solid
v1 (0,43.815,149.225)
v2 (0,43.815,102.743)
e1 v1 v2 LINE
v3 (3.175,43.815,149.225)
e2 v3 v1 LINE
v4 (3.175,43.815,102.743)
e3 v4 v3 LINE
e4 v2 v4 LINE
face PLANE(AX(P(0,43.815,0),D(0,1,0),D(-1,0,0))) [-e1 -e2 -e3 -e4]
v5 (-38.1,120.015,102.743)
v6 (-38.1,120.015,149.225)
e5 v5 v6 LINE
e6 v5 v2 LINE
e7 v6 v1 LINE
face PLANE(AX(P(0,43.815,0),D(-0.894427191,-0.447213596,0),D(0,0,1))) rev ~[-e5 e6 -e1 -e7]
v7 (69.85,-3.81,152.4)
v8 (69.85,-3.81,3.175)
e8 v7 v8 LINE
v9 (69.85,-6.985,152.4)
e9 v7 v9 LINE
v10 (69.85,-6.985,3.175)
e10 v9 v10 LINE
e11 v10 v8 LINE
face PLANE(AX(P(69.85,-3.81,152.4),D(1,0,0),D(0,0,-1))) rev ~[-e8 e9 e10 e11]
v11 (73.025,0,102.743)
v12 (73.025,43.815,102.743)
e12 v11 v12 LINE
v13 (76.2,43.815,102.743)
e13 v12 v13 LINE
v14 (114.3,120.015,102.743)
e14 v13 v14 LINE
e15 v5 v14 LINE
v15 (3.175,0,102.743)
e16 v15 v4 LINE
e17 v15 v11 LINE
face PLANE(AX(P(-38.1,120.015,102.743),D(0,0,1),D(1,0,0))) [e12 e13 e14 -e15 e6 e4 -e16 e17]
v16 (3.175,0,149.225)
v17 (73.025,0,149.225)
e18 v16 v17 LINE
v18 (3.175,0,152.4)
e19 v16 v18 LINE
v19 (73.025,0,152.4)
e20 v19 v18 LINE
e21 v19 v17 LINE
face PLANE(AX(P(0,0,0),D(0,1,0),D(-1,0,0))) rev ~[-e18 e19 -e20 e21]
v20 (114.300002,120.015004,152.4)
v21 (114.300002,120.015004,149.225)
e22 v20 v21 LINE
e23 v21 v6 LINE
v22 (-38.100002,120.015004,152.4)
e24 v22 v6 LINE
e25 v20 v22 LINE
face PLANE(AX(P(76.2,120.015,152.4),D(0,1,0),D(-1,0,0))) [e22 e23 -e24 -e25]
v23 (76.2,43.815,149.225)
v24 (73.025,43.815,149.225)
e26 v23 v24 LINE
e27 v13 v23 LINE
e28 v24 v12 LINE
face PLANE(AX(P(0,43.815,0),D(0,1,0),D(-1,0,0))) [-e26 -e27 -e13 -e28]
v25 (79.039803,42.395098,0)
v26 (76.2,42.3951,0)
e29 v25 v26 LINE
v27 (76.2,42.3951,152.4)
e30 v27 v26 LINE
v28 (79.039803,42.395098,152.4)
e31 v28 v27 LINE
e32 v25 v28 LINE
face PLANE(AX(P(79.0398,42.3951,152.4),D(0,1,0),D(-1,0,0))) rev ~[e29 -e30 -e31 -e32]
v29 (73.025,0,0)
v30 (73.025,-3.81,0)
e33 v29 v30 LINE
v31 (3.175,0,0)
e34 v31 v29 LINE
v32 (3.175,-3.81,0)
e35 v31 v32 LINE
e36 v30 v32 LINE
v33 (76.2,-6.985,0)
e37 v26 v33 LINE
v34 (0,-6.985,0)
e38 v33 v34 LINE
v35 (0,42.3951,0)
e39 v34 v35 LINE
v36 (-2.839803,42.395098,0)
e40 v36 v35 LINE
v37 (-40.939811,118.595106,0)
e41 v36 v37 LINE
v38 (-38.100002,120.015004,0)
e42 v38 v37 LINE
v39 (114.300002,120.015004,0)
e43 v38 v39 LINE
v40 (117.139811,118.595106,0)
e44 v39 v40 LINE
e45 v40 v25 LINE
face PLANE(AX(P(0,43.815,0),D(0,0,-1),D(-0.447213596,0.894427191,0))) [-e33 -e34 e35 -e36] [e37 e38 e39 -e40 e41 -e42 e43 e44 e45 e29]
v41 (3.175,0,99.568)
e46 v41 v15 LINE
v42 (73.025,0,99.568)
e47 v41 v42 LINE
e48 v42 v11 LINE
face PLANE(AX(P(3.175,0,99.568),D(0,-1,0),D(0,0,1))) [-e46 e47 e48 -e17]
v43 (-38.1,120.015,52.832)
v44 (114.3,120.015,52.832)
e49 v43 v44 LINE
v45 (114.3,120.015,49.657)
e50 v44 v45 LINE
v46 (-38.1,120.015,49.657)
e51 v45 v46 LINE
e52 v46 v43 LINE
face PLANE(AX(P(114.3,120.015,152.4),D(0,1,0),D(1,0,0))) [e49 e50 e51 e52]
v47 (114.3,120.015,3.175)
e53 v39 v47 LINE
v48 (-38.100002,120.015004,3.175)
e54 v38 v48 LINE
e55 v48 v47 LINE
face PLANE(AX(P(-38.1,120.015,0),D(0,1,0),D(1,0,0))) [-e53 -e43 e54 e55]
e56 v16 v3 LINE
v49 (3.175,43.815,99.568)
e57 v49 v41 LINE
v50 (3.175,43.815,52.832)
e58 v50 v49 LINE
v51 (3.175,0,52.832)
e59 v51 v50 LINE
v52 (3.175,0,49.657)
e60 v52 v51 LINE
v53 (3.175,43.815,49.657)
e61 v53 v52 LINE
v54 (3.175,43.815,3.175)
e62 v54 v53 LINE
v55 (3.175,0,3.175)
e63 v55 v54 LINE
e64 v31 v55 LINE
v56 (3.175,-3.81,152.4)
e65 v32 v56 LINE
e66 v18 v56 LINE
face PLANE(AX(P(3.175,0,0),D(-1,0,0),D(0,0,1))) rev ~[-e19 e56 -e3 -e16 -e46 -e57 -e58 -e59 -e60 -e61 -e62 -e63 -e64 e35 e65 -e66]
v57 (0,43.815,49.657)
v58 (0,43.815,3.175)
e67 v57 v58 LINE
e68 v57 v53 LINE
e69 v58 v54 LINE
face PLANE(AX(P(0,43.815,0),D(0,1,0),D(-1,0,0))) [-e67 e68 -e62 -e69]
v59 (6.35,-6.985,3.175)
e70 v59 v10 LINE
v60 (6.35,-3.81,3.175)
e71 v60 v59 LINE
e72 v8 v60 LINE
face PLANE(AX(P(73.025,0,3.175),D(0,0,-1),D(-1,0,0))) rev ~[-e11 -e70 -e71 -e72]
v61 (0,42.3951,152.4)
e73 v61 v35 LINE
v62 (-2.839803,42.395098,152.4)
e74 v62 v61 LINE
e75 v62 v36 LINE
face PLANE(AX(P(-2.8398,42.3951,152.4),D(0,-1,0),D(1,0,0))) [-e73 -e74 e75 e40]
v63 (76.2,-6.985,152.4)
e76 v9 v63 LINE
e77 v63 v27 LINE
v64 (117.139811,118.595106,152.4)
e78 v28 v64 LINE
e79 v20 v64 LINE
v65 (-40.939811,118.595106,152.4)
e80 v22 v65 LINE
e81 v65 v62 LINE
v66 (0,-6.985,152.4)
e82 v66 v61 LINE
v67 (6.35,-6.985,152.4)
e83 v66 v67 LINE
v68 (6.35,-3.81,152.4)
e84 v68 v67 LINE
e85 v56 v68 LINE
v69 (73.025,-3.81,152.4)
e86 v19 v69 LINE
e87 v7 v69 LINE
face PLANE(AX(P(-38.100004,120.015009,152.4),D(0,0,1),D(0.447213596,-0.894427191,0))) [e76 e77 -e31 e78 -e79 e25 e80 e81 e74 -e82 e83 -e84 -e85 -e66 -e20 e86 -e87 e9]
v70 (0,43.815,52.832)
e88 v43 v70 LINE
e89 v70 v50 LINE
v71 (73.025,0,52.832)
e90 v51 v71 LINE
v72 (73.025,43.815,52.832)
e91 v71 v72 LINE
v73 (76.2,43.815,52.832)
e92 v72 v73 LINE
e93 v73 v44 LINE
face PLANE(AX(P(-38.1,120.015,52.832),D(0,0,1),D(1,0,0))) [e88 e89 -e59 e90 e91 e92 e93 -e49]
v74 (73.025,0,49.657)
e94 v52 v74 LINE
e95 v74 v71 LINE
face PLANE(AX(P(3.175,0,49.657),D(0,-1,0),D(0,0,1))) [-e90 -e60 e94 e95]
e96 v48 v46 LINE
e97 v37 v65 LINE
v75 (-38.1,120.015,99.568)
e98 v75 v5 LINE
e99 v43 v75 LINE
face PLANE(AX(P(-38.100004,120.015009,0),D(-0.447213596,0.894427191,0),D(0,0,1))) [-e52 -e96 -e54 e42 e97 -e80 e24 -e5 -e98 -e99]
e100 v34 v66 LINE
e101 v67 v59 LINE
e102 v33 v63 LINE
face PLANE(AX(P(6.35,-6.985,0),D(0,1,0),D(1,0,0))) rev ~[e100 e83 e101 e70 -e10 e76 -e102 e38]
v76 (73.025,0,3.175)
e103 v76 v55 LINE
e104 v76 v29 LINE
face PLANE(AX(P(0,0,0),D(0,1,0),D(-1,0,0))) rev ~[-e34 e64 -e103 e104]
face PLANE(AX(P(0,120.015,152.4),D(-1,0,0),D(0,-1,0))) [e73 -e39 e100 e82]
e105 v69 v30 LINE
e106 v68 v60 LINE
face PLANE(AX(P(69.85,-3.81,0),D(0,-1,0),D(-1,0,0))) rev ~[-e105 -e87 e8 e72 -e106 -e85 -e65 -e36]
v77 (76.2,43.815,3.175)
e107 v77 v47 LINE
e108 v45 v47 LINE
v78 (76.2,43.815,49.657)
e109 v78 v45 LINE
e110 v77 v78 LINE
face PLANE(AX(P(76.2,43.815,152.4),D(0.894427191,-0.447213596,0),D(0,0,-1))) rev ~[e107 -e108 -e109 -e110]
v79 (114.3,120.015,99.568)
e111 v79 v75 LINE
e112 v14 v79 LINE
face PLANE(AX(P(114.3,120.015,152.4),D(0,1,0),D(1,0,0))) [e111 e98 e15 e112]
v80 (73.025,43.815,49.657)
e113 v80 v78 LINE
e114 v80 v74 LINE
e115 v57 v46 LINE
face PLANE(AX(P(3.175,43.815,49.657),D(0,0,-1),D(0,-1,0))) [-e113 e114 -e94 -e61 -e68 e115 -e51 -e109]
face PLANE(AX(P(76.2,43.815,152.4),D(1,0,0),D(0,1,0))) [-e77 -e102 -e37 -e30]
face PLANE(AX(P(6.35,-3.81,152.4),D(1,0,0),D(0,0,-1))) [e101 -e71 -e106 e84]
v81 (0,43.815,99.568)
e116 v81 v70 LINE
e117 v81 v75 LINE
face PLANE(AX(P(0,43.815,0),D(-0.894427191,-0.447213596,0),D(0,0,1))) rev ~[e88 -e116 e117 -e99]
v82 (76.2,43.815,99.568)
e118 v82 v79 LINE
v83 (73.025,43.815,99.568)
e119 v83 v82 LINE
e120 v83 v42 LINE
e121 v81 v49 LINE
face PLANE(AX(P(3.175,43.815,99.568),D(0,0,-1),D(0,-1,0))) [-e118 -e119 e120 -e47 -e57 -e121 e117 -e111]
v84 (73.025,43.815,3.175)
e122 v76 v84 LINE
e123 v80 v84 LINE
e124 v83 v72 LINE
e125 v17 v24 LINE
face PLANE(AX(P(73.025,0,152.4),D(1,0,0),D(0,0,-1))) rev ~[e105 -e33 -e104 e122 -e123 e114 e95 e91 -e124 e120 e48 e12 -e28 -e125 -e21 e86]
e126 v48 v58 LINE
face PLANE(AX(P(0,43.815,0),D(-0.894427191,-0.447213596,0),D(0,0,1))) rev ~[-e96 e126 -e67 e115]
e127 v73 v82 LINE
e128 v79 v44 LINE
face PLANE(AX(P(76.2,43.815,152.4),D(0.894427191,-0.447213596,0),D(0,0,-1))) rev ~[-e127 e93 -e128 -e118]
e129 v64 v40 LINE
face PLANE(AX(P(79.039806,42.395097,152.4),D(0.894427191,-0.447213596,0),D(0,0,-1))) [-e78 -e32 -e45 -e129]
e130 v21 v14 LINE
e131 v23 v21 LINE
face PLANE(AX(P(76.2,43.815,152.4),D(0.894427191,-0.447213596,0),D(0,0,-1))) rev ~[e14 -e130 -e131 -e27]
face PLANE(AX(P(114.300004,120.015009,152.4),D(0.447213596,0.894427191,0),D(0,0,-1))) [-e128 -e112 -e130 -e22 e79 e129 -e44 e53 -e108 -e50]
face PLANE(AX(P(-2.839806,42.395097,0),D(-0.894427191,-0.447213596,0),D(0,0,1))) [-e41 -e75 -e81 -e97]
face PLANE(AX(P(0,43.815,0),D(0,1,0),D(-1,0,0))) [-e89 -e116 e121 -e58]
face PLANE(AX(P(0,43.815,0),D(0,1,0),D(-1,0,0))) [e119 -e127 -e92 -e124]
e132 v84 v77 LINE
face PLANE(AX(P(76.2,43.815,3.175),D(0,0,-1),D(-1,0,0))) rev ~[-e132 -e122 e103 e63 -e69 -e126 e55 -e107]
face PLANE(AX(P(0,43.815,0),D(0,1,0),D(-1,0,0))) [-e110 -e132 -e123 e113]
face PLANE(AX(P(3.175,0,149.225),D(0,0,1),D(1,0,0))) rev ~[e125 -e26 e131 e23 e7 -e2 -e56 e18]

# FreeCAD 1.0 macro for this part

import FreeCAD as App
import Part
import Sketcher
from FreeCAD import Vector
Q = App.Units.Quantity

doc = App.newDocument("Part")
body = doc.addObject("PartDesign::Body", "Body")

# Sketch on XZ plane
sketch1 = doc.addObject("Sketcher::SketchObject", "Sketch")
body.addObject(sketch1)
sketch1.AttachmentSupport = (doc.XZ_Plane, [""])
sketch1.MapMode = "FlatFace"
sketch1.addGeometry([
    Part.LineSegment(Vector(76, 0, 0), Vector(0, 0, 0)),  # 0
    Part.LineSegment(Vector(0, 0, 0), Vector(0, 152, 0)),  # 1
    Part.LineSegment(Vector(0, 152, 0), Vector(76, 152, 0)),  # 2
    Part.LineSegment(Vector(76, 152, 0), Vector(76, 0, 0)),  # 3
    Part.LineSegment(Vector(73, 149, 0), Vector(3, 149, 0)),  # 4
    Part.LineSegment(Vector(3, 149, 0), Vector(3, 3, 0)),  # 5
    Part.LineSegment(Vector(3, 3, 0), Vector(73, 3, 0)),  # 6
    Part.LineSegment(Vector(73, 3, 0), Vector(73, 149, 0)),  # 7
], False)
sketch1.addConstraint([
    Sketcher.Constraint("Coincident", 0, 2, 1, 1),
    Sketcher.Constraint("Coincident", 1, 2, 2, 1),
    Sketcher.Constraint("Coincident", 2, 2, 3, 1),
    Sketcher.Constraint("Coincident", 3, 2, 0, 1),
    Sketcher.Constraint("Coincident", 4, 2, 5, 1),
    Sketcher.Constraint("Coincident", 5, 2, 6, 1),
    Sketcher.Constraint("Coincident", 6, 2, 7, 1),
    Sketcher.Constraint("Coincident", 7, 2, 4, 1),
    Sketcher.Constraint("Horizontal", 0),
    Sketcher.Constraint("Vertical", 1),
    Sketcher.Constraint("Horizontal", 2),
    Sketcher.Constraint("Vertical", 3),
    Sketcher.Constraint("Horizontal", 4),
    Sketcher.Constraint("Vertical", 5),
    Sketcher.Constraint("Horizontal", 6),
    Sketcher.Constraint("Vertical", 7),
    Sketcher.Constraint("Coincident", 0, 2, -1, 1),
    Sketcher.Constraint("DistanceX", 0, 2, 0, 1, Q("3 in")),
    Sketcher.Constraint("DistanceY", 1, 1, 1, 2, Q("6 in")),
    Sketcher.Constraint("DistanceX", -1, 1, 4, 2, Q("0.125 in")),
    Sketcher.Constraint("DistanceY", -1, 1, 5, 2, Q("0.125 in")),
    Sketcher.Constraint("DistanceY", 4, 2, 1, 2, Q("0.125 in")),
    Sketcher.Constraint("DistanceX", 6, 2, 3, 2, Q("0.125 in")),
])
pad1 = doc.addObject("PartDesign::Pad", "Pad")
body.addObject(pad1)
pad1.Profile = sketch1
pad1.Length = Q("1.725 in")
pad1.Reversed = True

# Sketch on XZ plane
sketch2 = doc.addObject("Sketcher::SketchObject", "Sketch001")
body.addObject(sketch2)
sketch2.AttachmentSupport = (doc.XZ_Plane, [""])
sketch2.MapMode = "FlatFace"
sketch2.addGeometry([
    Part.LineSegment(Vector(3.2, 152.4, 0), Vector(0, 152.4, 0)),  # 0
    Part.LineSegment(Vector(0, 152.4, 0), Vector(0, 0, 0)),  # 1
    Part.LineSegment(Vector(0, 0, 0), Vector(3.2, 0, 0)),  # 2
    Part.LineSegment(Vector(3.2, 0, 0), Vector(3.2, 152.4, 0)),  # 3
    Part.LineSegment(Vector(76.2, 152.4, 0), Vector(73, 152.4, 0)),  # 4
    Part.LineSegment(Vector(73, 152.4, 0), Vector(73, 0, 0)),  # 5
    Part.LineSegment(Vector(73, 0, 0), Vector(76.2, 0, 0)),  # 6
    Part.LineSegment(Vector(76.2, 0, 0), Vector(76.2, 152.4, 0)),  # 7
], False)
sketch2.addConstraint([
    Sketcher.Constraint("Coincident", 0, 2, 1, 1),
    Sketcher.Constraint("Coincident", 1, 2, 2, 1),
    Sketcher.Constraint("Coincident", 2, 2, 3, 1),
    Sketcher.Constraint("Coincident", 3, 2, 0, 1),
    Sketcher.Constraint("Coincident", 4, 2, 5, 1),
    Sketcher.Constraint("Coincident", 5, 2, 6, 1),
    Sketcher.Constraint("Coincident", 6, 2, 7, 1),
    Sketcher.Constraint("Coincident", 7, 2, 4, 1),
    Sketcher.Constraint("Horizontal", 0),
    Sketcher.Constraint("Vertical", 1),
    Sketcher.Constraint("Horizontal", 2),
    Sketcher.Constraint("Vertical", 3),
    Sketcher.Constraint("Horizontal", 4),
    Sketcher.Constraint("Vertical", 5),
    Sketcher.Constraint("Horizontal", 6),
    Sketcher.Constraint("Vertical", 7),
    Sketcher.Constraint("Coincident", 1, 2, -1, 1),
    Sketcher.Constraint("PointOnObject", 5, 2, -1),
    Sketcher.Constraint("Horizontal", 3, 2, 4, 2),
    Sketcher.Constraint("Equal", 2, 4),
    Sketcher.Constraint("DistanceX", 0, 2, 0, 1, Q("0.125 in")),
    Sketcher.Constraint("DistanceY", 1, 2, 1, 1, Q("6 in")),
    Sketcher.Constraint("DistanceX", -1, 1, 6, 2, Q("3 in")),
])
pad2 = doc.addObject("PartDesign::Pad", "Pad001")
body.addObject(pad2)
pad2.Profile = sketch2
pad2.Length = Q("0.15 in")

# Sketch on XZ plane
sketch3 = doc.addObject("Sketcher::SketchObject", "Sketch002")
body.addObject(sketch3)
sketch3.AttachmentSupport = (doc.XZ_Plane, [""])
sketch3.MapMode = "FlatFace"
sketch3.AttachmentOffset = App.Placement(Vector(0, 0, 0.15 * 25.4), App.Rotation())
sketch3.addGeometry([
    Part.LineSegment(Vector(6, 152, 0), Vector(0, 152, 0)),  # 0
    Part.LineSegment(Vector(0, 152, 0), Vector(0, 0, 0)),  # 1
    Part.LineSegment(Vector(0, 0, 0), Vector(6, 0, 0)),  # 2
    Part.LineSegment(Vector(6, 0, 0), Vector(6, 152, 0)),  # 3
    Part.LineSegment(Vector(76, 152, 0), Vector(70, 152, 0)),  # 4
    Part.LineSegment(Vector(70, 152, 0), Vector(70, 0, 0)),  # 5
    Part.LineSegment(Vector(70, 0, 0), Vector(76, 0, 0)),  # 6
    Part.LineSegment(Vector(76, 0, 0), Vector(76, 152, 0)),  # 7
], False)
sketch3.addConstraint([
    Sketcher.Constraint("Coincident", 0, 2, 1, 1),
    Sketcher.Constraint("Coincident", 1, 2, 2, 1),
    Sketcher.Constraint("Coincident", 2, 2, 3, 1),
    Sketcher.Constraint("Coincident", 3, 2, 0, 1),
    Sketcher.Constraint("Coincident", 4, 2, 5, 1),
    Sketcher.Constraint("Coincident", 5, 2, 6, 1),
    Sketcher.Constraint("Coincident", 6, 2, 7, 1),
    Sketcher.Constraint("Coincident", 7, 2, 4, 1),
    Sketcher.Constraint("Horizontal", 0),
    Sketcher.Constraint("Vertical", 1),
    Sketcher.Constraint("Horizontal", 2),
    Sketcher.Constraint("Vertical", 3),
    Sketcher.Constraint("Horizontal", 4),
    Sketcher.Constraint("Vertical", 5),
    Sketcher.Constraint("Horizontal", 6),
    Sketcher.Constraint("Vertical", 7),
    Sketcher.Constraint("Coincident", 1, 2, -1, 1),
    Sketcher.Constraint("PointOnObject", 5, 2, -1),
    Sketcher.Constraint("Horizontal", 3, 2, 4, 2),
    Sketcher.Constraint("Equal", 2, 4),
    Sketcher.Constraint("DistanceX", 0, 2, 0, 1, Q("0.25 in")),
    Sketcher.Constraint("DistanceY", 1, 2, 1, 1, Q("6 in")),
    Sketcher.Constraint("DistanceX", -1, 1, 6, 2, Q("3 in")),
])
pad3 = doc.addObject("PartDesign::Pad", "Pad002")
body.addObject(pad3)
pad3.Profile = sketch3
pad3.Length = Q("0.125 in")

# Sketch on XY plane
sketch4 = doc.addObject("Sketcher::SketchObject", "Sketch003")
body.addObject(sketch4)
sketch4.AttachmentSupport = (doc.XY_Plane, [""])
sketch4.MapMode = "FlatFace"
sketch4.addGeometry([
    Part.LineSegment(Vector(6.3, -3.8, 0), Vector(69.8, -3.8, 0)),
    Part.LineSegment(Vector(69.8, -3.8, 0), Vector(69.8, -7, 0)),
    Part.LineSegment(Vector(69.8, -7, 0), Vector(6.3, -7, 0)),
    Part.LineSegment(Vector(6.3, -7, 0), Vector(6.3, -3.8, 0)),
], False)
sketch4.addConstraint([
    Sketcher.Constraint("Coincident", 0, 2, 1, 1),
    Sketcher.Constraint("Coincident", 1, 2, 2, 1),
    Sketcher.Constraint("Coincident", 2, 2, 3, 1),
    Sketcher.Constraint("Coincident", 3, 2, 0, 1),
    Sketcher.Constraint("Horizontal", 0),
    Sketcher.Constraint("Vertical", 1),
    Sketcher.Constraint("Horizontal", 2),
    Sketcher.Constraint("Vertical", 3),
    Sketcher.Constraint("DistanceX", 0, 1, 0, 2, Q("2.5 in")),
    Sketcher.Constraint("DistanceY", 1, 2, 1, 1, Q("0.125 in")),
    Sketcher.Constraint("DistanceX", -1, 1, 0, 2, Q("2.75 in")),
    Sketcher.Constraint("DistanceY", 0, 2, -1, 1, Q("0.15 in")),
])
pad4 = doc.addObject("PartDesign::Pad", "Pad003")
body.addObject(pad4)
pad4.Profile = sketch4
pad4.Length = Q("0.125 in")

# Sketch on YZ plane
sketch5 = doc.addObject("Sketcher::SketchObject", "Sketch004")
body.addObject(sketch5)
sketch5.AttachmentSupport = (doc.YZ_Plane, [""])
sketch5.MapMode = "FlatFace"
sketch5.AttachmentOffset = App.Placement(Vector(0, 0, 0.125 * 25.4), App.Rotation())
sketch5.addGeometry([
    Part.LineSegment(Vector(43.8, 99.6, 0), Vector(43.8, 102.7, 0)),  # 0
    Part.LineSegment(Vector(43.8, 102.7, 0), Vector(0, 102.7, 0)),  # 1
    Part.LineSegment(Vector(0, 102.7, 0), Vector(0, 99.6, 0)),  # 2
    Part.LineSegment(Vector(0, 99.6, 0), Vector(43.8, 99.6, 0)),  # 3
    Part.LineSegment(Vector(43.8, 49.7, 0), Vector(43.8, 52.8, 0)),  # 4
    Part.LineSegment(Vector(43.8, 52.8, 0), Vector(0, 52.8, 0)),  # 5
    Part.LineSegment(Vector(0, 52.8, 0), Vector(0, 49.7, 0)),  # 6
    Part.LineSegment(Vector(0, 49.7, 0), Vector(43.8, 49.7, 0)),  # 7
], False)
sketch5.addConstraint([
    Sketcher.Constraint("Coincident", 0, 2, 1, 1),
    Sketcher.Constraint("Coincident", 1, 2, 2, 1),
    Sketcher.Constraint("Coincident", 2, 2, 3, 1),
    Sketcher.Constraint("Coincident", 3, 2, 0, 1),
    Sketcher.Constraint("Coincident", 4, 2, 5, 1),
    Sketcher.Constraint("Coincident", 5, 2, 6, 1),
    Sketcher.Constraint("Coincident", 6, 2, 7, 1),
    Sketcher.Constraint("Coincident", 7, 2, 4, 1),
    Sketcher.Constraint("Vertical", 0),
    Sketcher.Constraint("Horizontal", 1),
    Sketcher.Constraint("Vertical", 2),
    Sketcher.Constraint("Horizontal", 3),
    Sketcher.Constraint("Vertical", 4),
    Sketcher.Constraint("Horizontal", 5),
    Sketcher.Constraint("Vertical", 6),
    Sketcher.Constraint("Horizontal", 7),
    Sketcher.Constraint("PointOnObject", 1, 2, -2),
    Sketcher.Constraint("PointOnObject", 5, 2, -2),
    Sketcher.Constraint("Vertical", 3, 2, 4, 2),
    Sketcher.Constraint("Equal", 2, 4),
    Sketcher.Constraint("DistanceX", 1, 2, 1, 1, Q("1.725 in")),
    Sketcher.Constraint("DistanceY", 0, 1, 0, 2, Q("0.125 in")),
    Sketcher.Constraint("DistanceY", 4, 2, 3, 2, Q("1.84 in")),
    Sketcher.Constraint("DistanceY", -1, 1, 2, 2, Q("3.92 in")),
])
pad5 = doc.addObject("PartDesign::Pad", "Pad004")
body.addObject(pad5)
pad5.Profile = sketch5
pad5.Type = "UpToFirst"

# Sketch on XY plane
sketch6 = doc.addObject("Sketcher::SketchObject", "Sketch005")
body.addObject(sketch6)
sketch6.AttachmentSupport = (doc.XY_Plane, [""])
sketch6.MapMode = "FlatFace"
sketch6.AttachmentOffset = App.Placement(Vector(0, 0, 6 * 25.4), App.Rotation())
sketch6.addGeometry([
    Part.LineSegment(Vector(0, 44, 0), Vector(76, 44, 0)),
    Part.LineSegment(Vector(76, 44, 0), Vector(76, 120, 0)),
    Part.LineSegment(Vector(76, 120, 0), Vector(0, 120, 0)),
    Part.LineSegment(Vector(0, 120, 0), Vector(0, 44, 0)),
], False)
sketch6.addConstraint([
    Sketcher.Constraint("Coincident", 0, 2, 1, 1),
    Sketcher.Constraint("Coincident", 1, 2, 2, 1),
    Sketcher.Constraint("Coincident", 2, 2, 3, 1),
    Sketcher.Constraint("Coincident", 3, 2, 0, 1),
    Sketcher.Constraint("Horizontal", 0),
    Sketcher.Constraint("Vertical", 1),
    Sketcher.Constraint("Horizontal", 2),
    Sketcher.Constraint("Vertical", 3),
    Sketcher.Constraint("PointOnObject", 2, 2, -2),
    Sketcher.Constraint("Equal", 2, 1),
    Sketcher.Constraint("DistanceX", 0, 1, 0, 2, Q("3 in")),
    Sketcher.Constraint("DistanceY", -1, 1, 0, 2, Q("1.725 in")),
])
pad6 = doc.addObject("PartDesign::Pad", "Pad005")
body.addObject(pad6)
pad6.Profile = sketch6
pad6.Length = Q("0.125 in")
pad6.Reversed = True

# Sketch on XY plane
sketch7 = doc.addObject("Sketcher::SketchObject", "Sketch006")
body.addObject(sketch7)
sketch7.AttachmentSupport = (doc.XY_Plane, [""])
sketch7.MapMode = "FlatFace"
sketch7.AttachmentOffset = App.Placement(Vector(0, 0, 6 * 25.4), App.Rotation())
sketch7.addGeometry([
    Part.LineSegment(Vector(114, 120, 0), Vector(76, 120, 0)),  # 0
    Part.LineSegment(Vector(76, 120, 0), Vector(76, 44, 0)),  # 1
    Part.LineSegment(Vector(76, 44, 0), Vector(114, 120, 0)),  # 2
    Part.LineSegment(Vector(0, 44, 0), Vector(0, 120, 0)),  # 3
    Part.LineSegment(Vector(0, 120, 0), Vector(-38, 120, 0)),  # 4
    Part.LineSegment(Vector(-38, 120, 0), Vector(0, 44, 0)),  # 5
], False)
sketch7.addConstraint([
    Sketcher.Constraint("Coincident", 0, 2, 1, 1),
    Sketcher.Constraint("Coincident", 1, 2, 2, 1),
    Sketcher.Constraint("Coincident", 2, 2, 0, 1),
    Sketcher.Constraint("Coincident", 3, 2, 4, 1),
    Sketcher.Constraint("Coincident", 4, 2, 5, 1),
    Sketcher.Constraint("Coincident", 5, 2, 3, 1),
    Sketcher.Constraint("Horizontal", 0),
    Sketcher.Constraint("Vertical", 1),
    Sketcher.Constraint("Vertical", 3),
    Sketcher.Constraint("Horizontal", 4),
    Sketcher.Constraint("PointOnObject", 3, 2, -2),
    Sketcher.Constraint("Horizontal", 2, 2, 3, 2),
    Sketcher.Constraint("Horizontal", 1, 2, 5, 2),
    Sketcher.Constraint("Equal", 0, 4),
    Sketcher.Constraint("DistanceX", 0, 2, 0, 1, Q("1.5 in")),
    Sketcher.Constraint("DistanceY", 1, 2, 1, 1, Q("3 in")),
    Sketcher.Constraint("DistanceX", -1, 1, 0, 2, Q("3 in")),
    Sketcher.Constraint("DistanceY", -1, 1, 0, 2, Q("4.725 in")),
])
pad7 = doc.addObject("PartDesign::Pad", "Pad006")
body.addObject(pad7)
pad7.Profile = sketch7
pad7.Length = Q("0.125 in")
pad7.Reversed = True

# Sketch on XY plane
sketch8 = doc.addObject("Sketcher::SketchObject", "Sketch007")
body.addObject(sketch8)
sketch8.AttachmentSupport = (doc.XY_Plane, [""])
sketch8.MapMode = "FlatFace"
sketch8.addGeometry([
    Part.LineSegment(Vector(76, 44, 0), Vector(0, 44, 0)),
    Part.LineSegment(Vector(0, 44, 0), Vector(-38, 120, 0)),
    Part.LineSegment(Vector(-38, 120, 0), Vector(114, 120, 0)),
    Part.LineSegment(Vector(114, 120, 0), Vector(76, 44, 0)),
], False)
sketch8.addConstraint([
    Sketcher.Constraint("Coincident", 0, 2, 1, 1),
    Sketcher.Constraint("Coincident", 1, 2, 2, 1),
    Sketcher.Constraint("Coincident", 2, 2, 3, 1),
    Sketcher.Constraint("Coincident", 3, 2, 0, 1),
    Sketcher.Constraint("Horizontal", 0),
    Sketcher.Constraint("Horizontal", 2),
    Sketcher.Constraint("PointOnObject", 0, 2, -2),
    Sketcher.Constraint("Equal", 1, 3),
    Sketcher.Constraint("DistanceX", 0, 2, 0, 1, Q("3 in")),
    Sketcher.Constraint("DistanceX", 2, 1, 2, 2, Q("6 in")),
    Sketcher.Constraint("DistanceY", 0, 2, 1, 2, Q("3 in")),
    Sketcher.Constraint("DistanceY", -1, 1, 0, 2, Q("1.725 in")),
])
pad8 = doc.addObject("PartDesign::Pad", "Pad007")
body.addObject(pad8)
pad8.Profile = sketch8
pad8.Length = Q("0.125 in")

# Sketch on an angled plane
sketch9 = doc.addObject("Sketcher::SketchObject", "Sketch008")
body.addObject(sketch9)
sketch9.Placement = App.Placement(Vector(76.2, 43.815, 152.4), App.Rotation(Vector(0, 0, -1), Vector(0.447213595, 0.894427191, 0), Vector(0.894427191, -0.447213595, 0), "ZXY"))
sketch9.addGeometry([
    Part.LineSegment(Vector(152, 85, 0), Vector(0, 85, 0)),
    Part.LineSegment(Vector(0, 85, 0), Vector(0, 0, 0)),
    Part.LineSegment(Vector(0, 0, 0), Vector(152, 0, 0)),
    Part.LineSegment(Vector(152, 0, 0), Vector(152, 85, 0)),
], False)
sketch9.addConstraint([
    Sketcher.Constraint("Coincident", 0, 2, 1, 1),
    Sketcher.Constraint("Coincident", 1, 2, 2, 1),
    Sketcher.Constraint("Coincident", 2, 2, 3, 1),
    Sketcher.Constraint("Coincident", 3, 2, 0, 1),
    Sketcher.Constraint("Horizontal", 0),
    Sketcher.Constraint("Vertical", 1),
    Sketcher.Constraint("Horizontal", 2),
    Sketcher.Constraint("Vertical", 3),
    Sketcher.Constraint("Coincident", 1, 2, -1, 1),
    Sketcher.Constraint("DistanceX", 0, 2, 0, 1, Q("6 in")),
    Sketcher.Constraint("DistanceY", 1, 2, 1, 1, Q("3.3541 in")),
])
pad9 = doc.addObject("PartDesign::Pad", "Pad008")
body.addObject(pad9)
pad9.Profile = sketch9
pad9.Length = Q("0.125 in")

# Sketch on an angled plane
sketch10 = doc.addObject("Sketcher::SketchObject", "Sketch009")
body.addObject(sketch10)
sketch10.Placement = App.Placement(Vector(0, 43.815, 0), App.Rotation(Vector(0, 0, 1), Vector(-0.447213595, 0.894427191, 0), Vector(-0.894427191, -0.447213595, 0), "ZXY"))
sketch10.addGeometry([
    Part.LineSegment(Vector(152, 85, 0), Vector(0, 85, 0)),
    Part.LineSegment(Vector(0, 85, 0), Vector(0, 0, 0)),
    Part.LineSegment(Vector(0, 0, 0), Vector(152, 0, 0)),
    Part.LineSegment(Vector(152, 0, 0), Vector(152, 85, 0)),
], False)
sketch10.addConstraint([
    Sketcher.Constraint("Coincident", 0, 2, 1, 1),
    Sketcher.Constraint("Coincident", 1, 2, 2, 1),
    Sketcher.Constraint("Coincident", 2, 2, 3, 1),
    Sketcher.Constraint("Coincident", 3, 2, 0, 1),
    Sketcher.Constraint("Horizontal", 0),
    Sketcher.Constraint("Vertical", 1),
    Sketcher.Constraint("Horizontal", 2),
    Sketcher.Constraint("Vertical", 3),
    Sketcher.Constraint("Coincident", 1, 2, -1, 1),
    Sketcher.Constraint("DistanceX", 0, 2, 0, 1, Q("6 in")),
    Sketcher.Constraint("DistanceY", 1, 2, 1, 1, Q("3.3541 in")),
])
pad10 = doc.addObject("PartDesign::Pad", "Pad009")
body.addObject(pad10)
pad10.Profile = sketch10
pad10.Length = Q("0.125 in")

# Sketch on XZ plane
sketch11 = doc.addObject("Sketcher::SketchObject", "Sketch010")
body.addObject(sketch11)
sketch11.AttachmentSupport = (doc.XZ_Plane, [""])
sketch11.MapMode = "FlatFace"
sketch11.AttachmentOffset = App.Placement(Vector(0, 0, -4.725 * 25.4), App.Rotation())
sketch11.addGeometry([
    Part.LineSegment(Vector(-38.1, 99.6, 0), Vector(-38.1, 102.7, 0)),  # 0
    Part.LineSegment(Vector(-38.1, 102.7, 0), Vector(114.3, 102.7, 0)),  # 1
    Part.LineSegment(Vector(114.3, 102.7, 0), Vector(114.3, 99.6, 0)),  # 2
    Part.LineSegment(Vector(114.3, 99.6, 0), Vector(-38.1, 99.6, 0)),  # 3
    Part.LineSegment(Vector(-38.1, 49.7, 0), Vector(-38.1, 52.8, 0)),  # 4
    Part.LineSegment(Vector(-38.1, 52.8, 0), Vector(114.3, 52.8, 0)),  # 5
    Part.LineSegment(Vector(114.3, 52.8, 0), Vector(114.3, 49.7, 0)),  # 6
    Part.LineSegment(Vector(114.3, 49.7, 0), Vector(-38.1, 49.7, 0)),  # 7
], False)
sketch11.addConstraint([
    Sketcher.Constraint("Coincident", 0, 2, 1, 1),
    Sketcher.Constraint("Coincident", 1, 2, 2, 1),
    Sketcher.Constraint("Coincident", 2, 2, 3, 1),
    Sketcher.Constraint("Coincident", 3, 2, 0, 1),
    Sketcher.Constraint("Coincident", 4, 2, 5, 1),
    Sketcher.Constraint("Coincident", 5, 2, 6, 1),
    Sketcher.Constraint("Coincident", 6, 2, 7, 1),
    Sketcher.Constraint("Coincident", 7, 2, 4, 1),
    Sketcher.Constraint("Vertical", 0),
    Sketcher.Constraint("Horizontal", 1),
    Sketcher.Constraint("Vertical", 2),
    Sketcher.Constraint("Horizontal", 3),
    Sketcher.Constraint("Vertical", 4),
    Sketcher.Constraint("Horizontal", 5),
    Sketcher.Constraint("Vertical", 6),
    Sketcher.Constraint("Horizontal", 7),
    Sketcher.Constraint("Vertical", 3, 2, 4, 2),
    Sketcher.Constraint("Vertical", 2, 2, 5, 2),
    Sketcher.Constraint("Equal", 2, 4),
    Sketcher.Constraint("DistanceX", 1, 1, 1, 2, Q("6 in")),
    Sketcher.Constraint("DistanceX", 0, 2, -1, 1, Q("1.5 in")),
    Sketcher.Constraint("DistanceY", 0, 1, 0, 2, Q("0.125 in")),
    Sketcher.Constraint("DistanceY", -1, 1, 2, 2, Q("3.92 in")),
    Sketcher.Constraint("DistanceY", -1, 1, 4, 2, Q("2.08 in")),
])
pad11 = doc.addObject("PartDesign::Pad", "Pad010")
body.addObject(pad11)
pad11.Profile = sketch11
pad11.Length = Q("0.125 in")

# Sketch on XY plane
sketch12 = doc.addObject("Sketcher::SketchObject", "Sketch011")
body.addObject(sketch12)
sketch12.AttachmentSupport = (doc.XY_Plane, [""])
sketch12.MapMode = "FlatFace"
sketch12.AttachmentOffset = App.Placement(Vector(0, 0, 4.045 * 25.4), App.Rotation())
sketch12.addGeometry([
    Part.LineSegment(Vector(76, 44, 0), Vector(113, 117, 0)),
    Part.LineSegment(Vector(113, 117, 0), Vector(-37, 117, 0)),
    Part.LineSegment(Vector(-37, 117, 0), Vector(0, 44, 0)),
    Part.LineSegment(Vector(0, 44, 0), Vector(76, 44, 0)),
], False)
sketch12.addConstraint([
    Sketcher.Constraint("Coincident", 0, 2, 1, 1),
    Sketcher.Constraint("Coincident", 1, 2, 2, 1),
    Sketcher.Constraint("Coincident", 2, 2, 3, 1),
    Sketcher.Constraint("Coincident", 3, 2, 0, 1),
    Sketcher.Constraint("Horizontal", 1),
    Sketcher.Constraint("Horizontal", 3),
    Sketcher.Constraint("PointOnObject", 2, 2, -2),
    Sketcher.Constraint("Equal", 0, 2),
    Sketcher.Constraint("DistanceX", 3, 1, 3, 2, Q("3 in")),
    Sketcher.Constraint("DistanceY", -1, 1, 0, 2, Q("4.6 in")),
    Sketcher.Constraint("DistanceX", 1, 2, 1, 1, Q("5.875 in")),
    Sketcher.Constraint("DistanceY", -1, 1, 2, 2, Q("1.725 in")),
])
pad12 = doc.addObject("PartDesign::Pad", "Pad011")
body.addObject(pad12)
pad12.Profile = sketch12
pad12.Length = Q("0.125 in")
pad12.Reversed = True

# Sketch on XY plane
sketch13 = doc.addObject("Sketcher::SketchObject", "Sketch012")
body.addObject(sketch13)
sketch13.AttachmentSupport = (doc.XY_Plane, [""])
sketch13.MapMode = "FlatFace"
sketch13.AttachmentOffset = App.Placement(Vector(0, 0, 2.08 * 25.4), App.Rotation())
sketch13.addGeometry([
    Part.LineSegment(Vector(76, 44, 0), Vector(113, 117, 0)),
    Part.LineSegment(Vector(113, 117, 0), Vector(-37, 117, 0)),
    Part.LineSegment(Vector(-37, 117, 0), Vector(0, 44, 0)),
    Part.LineSegment(Vector(0, 44, 0), Vector(76, 44, 0)),
], False)
sketch13.addConstraint([
    Sketcher.Constraint("Coincident", 0, 2, 1, 1),
    Sketcher.Constraint("Coincident", 1, 2, 2, 1),
    Sketcher.Constraint("Coincident", 2, 2, 3, 1),
    Sketcher.Constraint("Coincident", 3, 2, 0, 1),
    Sketcher.Constraint("Horizontal", 1),
    Sketcher.Constraint("Horizontal", 3),
    Sketcher.Constraint("PointOnObject", 2, 2, -2),
    Sketcher.Constraint("Equal", 0, 2),
    Sketcher.Constraint("DistanceX", 3, 1, 3, 2, Q("3 in")),
    Sketcher.Constraint("DistanceY", -1, 1, 0, 2, Q("4.6 in")),
    Sketcher.Constraint("DistanceX", 1, 2, 1, 1, Q("5.875 in")),
    Sketcher.Constraint("DistanceY", -1, 1, 2, 2, Q("1.725 in")),
])
pad13 = doc.addObject("PartDesign::Pad", "Pad012")
body.addObject(pad13)
pad13.Profile = sketch13
pad13.Length = Q("0.125 in")
pad13.Reversed = True

# Sketch on XY plane
sketch14 = doc.addObject("Sketcher::SketchObject", "Sketch013")
body.addObject(sketch14)
sketch14.AttachmentSupport = (doc.XY_Plane, [""])
sketch14.MapMode = "FlatFace"
sketch14.AttachmentOffset = App.Placement(Vector(0, 0, 6 * 25.4), App.Rotation())
sketch14.addGeometry([
    Part.LineSegment(Vector(0, 42.4, 0), Vector(0, 43.8, 0)),  # 0
    Part.LineSegment(Vector(0, 43.8, 0), Vector(-2.8, 42.4, 0)),  # 1
    Part.LineSegment(Vector(-2.8, 42.4, 0), Vector(0, 42.4, 0)),  # 2
    Part.LineSegment(Vector(76.2, 42.4, 0), Vector(79, 42.4, 0)),  # 3
    Part.LineSegment(Vector(79, 42.4, 0), Vector(76.2, 43.8, 0)),  # 4
    Part.LineSegment(Vector(76.2, 43.8, 0), Vector(76.2, 42.4, 0)),  # 5
], False)
sketch14.addConstraint([
    Sketcher.Constraint("Coincident", 0, 2, 1, 1),
    Sketcher.Constraint("Coincident", 1, 2, 2, 1),
    Sketcher.Constraint("Coincident", 2, 2, 0, 1),
    Sketcher.Constraint("Coincident", 3, 2, 4, 1),
    Sketcher.Constraint("Coincident", 4, 2, 5, 1),
    Sketcher.Constraint("Coincident", 5, 2, 3, 1),
    Sketcher.Constraint("Vertical", 0),
    Sketcher.Constraint("Horizontal", 2),
    Sketcher.Constraint("Horizontal", 3),
    Sketcher.Constraint("Vertical", 5),
    Sketcher.Constraint("PointOnObject", 0, 2, -2),
    Sketcher.Constraint("Horizontal", 2, 2, 3, 2),
    Sketcher.Constraint("Horizontal", 0, 2, 4, 2),
    Sketcher.Constraint("Equal", 2, 3),
    Sketcher.Constraint("DistanceX", -1, 1, 4, 2, Q("3 in")),
    Sketcher.Constraint("Distance", 1, Q("0.125 in")),
    Sketcher.Constraint("DistanceX", 2, 1, 2, 2, Q("0.1118 in")),
    Sketcher.Constraint("DistanceY", -1, 1, 0, 2, Q("1.725 in")),
])
pad14 = doc.addObject("PartDesign::Pad", "Pad013")
body.addObject(pad14)
pad14.Profile = sketch14
pad14.Length = Q("6 in")
pad14.Reversed = True

doc.recompute()
